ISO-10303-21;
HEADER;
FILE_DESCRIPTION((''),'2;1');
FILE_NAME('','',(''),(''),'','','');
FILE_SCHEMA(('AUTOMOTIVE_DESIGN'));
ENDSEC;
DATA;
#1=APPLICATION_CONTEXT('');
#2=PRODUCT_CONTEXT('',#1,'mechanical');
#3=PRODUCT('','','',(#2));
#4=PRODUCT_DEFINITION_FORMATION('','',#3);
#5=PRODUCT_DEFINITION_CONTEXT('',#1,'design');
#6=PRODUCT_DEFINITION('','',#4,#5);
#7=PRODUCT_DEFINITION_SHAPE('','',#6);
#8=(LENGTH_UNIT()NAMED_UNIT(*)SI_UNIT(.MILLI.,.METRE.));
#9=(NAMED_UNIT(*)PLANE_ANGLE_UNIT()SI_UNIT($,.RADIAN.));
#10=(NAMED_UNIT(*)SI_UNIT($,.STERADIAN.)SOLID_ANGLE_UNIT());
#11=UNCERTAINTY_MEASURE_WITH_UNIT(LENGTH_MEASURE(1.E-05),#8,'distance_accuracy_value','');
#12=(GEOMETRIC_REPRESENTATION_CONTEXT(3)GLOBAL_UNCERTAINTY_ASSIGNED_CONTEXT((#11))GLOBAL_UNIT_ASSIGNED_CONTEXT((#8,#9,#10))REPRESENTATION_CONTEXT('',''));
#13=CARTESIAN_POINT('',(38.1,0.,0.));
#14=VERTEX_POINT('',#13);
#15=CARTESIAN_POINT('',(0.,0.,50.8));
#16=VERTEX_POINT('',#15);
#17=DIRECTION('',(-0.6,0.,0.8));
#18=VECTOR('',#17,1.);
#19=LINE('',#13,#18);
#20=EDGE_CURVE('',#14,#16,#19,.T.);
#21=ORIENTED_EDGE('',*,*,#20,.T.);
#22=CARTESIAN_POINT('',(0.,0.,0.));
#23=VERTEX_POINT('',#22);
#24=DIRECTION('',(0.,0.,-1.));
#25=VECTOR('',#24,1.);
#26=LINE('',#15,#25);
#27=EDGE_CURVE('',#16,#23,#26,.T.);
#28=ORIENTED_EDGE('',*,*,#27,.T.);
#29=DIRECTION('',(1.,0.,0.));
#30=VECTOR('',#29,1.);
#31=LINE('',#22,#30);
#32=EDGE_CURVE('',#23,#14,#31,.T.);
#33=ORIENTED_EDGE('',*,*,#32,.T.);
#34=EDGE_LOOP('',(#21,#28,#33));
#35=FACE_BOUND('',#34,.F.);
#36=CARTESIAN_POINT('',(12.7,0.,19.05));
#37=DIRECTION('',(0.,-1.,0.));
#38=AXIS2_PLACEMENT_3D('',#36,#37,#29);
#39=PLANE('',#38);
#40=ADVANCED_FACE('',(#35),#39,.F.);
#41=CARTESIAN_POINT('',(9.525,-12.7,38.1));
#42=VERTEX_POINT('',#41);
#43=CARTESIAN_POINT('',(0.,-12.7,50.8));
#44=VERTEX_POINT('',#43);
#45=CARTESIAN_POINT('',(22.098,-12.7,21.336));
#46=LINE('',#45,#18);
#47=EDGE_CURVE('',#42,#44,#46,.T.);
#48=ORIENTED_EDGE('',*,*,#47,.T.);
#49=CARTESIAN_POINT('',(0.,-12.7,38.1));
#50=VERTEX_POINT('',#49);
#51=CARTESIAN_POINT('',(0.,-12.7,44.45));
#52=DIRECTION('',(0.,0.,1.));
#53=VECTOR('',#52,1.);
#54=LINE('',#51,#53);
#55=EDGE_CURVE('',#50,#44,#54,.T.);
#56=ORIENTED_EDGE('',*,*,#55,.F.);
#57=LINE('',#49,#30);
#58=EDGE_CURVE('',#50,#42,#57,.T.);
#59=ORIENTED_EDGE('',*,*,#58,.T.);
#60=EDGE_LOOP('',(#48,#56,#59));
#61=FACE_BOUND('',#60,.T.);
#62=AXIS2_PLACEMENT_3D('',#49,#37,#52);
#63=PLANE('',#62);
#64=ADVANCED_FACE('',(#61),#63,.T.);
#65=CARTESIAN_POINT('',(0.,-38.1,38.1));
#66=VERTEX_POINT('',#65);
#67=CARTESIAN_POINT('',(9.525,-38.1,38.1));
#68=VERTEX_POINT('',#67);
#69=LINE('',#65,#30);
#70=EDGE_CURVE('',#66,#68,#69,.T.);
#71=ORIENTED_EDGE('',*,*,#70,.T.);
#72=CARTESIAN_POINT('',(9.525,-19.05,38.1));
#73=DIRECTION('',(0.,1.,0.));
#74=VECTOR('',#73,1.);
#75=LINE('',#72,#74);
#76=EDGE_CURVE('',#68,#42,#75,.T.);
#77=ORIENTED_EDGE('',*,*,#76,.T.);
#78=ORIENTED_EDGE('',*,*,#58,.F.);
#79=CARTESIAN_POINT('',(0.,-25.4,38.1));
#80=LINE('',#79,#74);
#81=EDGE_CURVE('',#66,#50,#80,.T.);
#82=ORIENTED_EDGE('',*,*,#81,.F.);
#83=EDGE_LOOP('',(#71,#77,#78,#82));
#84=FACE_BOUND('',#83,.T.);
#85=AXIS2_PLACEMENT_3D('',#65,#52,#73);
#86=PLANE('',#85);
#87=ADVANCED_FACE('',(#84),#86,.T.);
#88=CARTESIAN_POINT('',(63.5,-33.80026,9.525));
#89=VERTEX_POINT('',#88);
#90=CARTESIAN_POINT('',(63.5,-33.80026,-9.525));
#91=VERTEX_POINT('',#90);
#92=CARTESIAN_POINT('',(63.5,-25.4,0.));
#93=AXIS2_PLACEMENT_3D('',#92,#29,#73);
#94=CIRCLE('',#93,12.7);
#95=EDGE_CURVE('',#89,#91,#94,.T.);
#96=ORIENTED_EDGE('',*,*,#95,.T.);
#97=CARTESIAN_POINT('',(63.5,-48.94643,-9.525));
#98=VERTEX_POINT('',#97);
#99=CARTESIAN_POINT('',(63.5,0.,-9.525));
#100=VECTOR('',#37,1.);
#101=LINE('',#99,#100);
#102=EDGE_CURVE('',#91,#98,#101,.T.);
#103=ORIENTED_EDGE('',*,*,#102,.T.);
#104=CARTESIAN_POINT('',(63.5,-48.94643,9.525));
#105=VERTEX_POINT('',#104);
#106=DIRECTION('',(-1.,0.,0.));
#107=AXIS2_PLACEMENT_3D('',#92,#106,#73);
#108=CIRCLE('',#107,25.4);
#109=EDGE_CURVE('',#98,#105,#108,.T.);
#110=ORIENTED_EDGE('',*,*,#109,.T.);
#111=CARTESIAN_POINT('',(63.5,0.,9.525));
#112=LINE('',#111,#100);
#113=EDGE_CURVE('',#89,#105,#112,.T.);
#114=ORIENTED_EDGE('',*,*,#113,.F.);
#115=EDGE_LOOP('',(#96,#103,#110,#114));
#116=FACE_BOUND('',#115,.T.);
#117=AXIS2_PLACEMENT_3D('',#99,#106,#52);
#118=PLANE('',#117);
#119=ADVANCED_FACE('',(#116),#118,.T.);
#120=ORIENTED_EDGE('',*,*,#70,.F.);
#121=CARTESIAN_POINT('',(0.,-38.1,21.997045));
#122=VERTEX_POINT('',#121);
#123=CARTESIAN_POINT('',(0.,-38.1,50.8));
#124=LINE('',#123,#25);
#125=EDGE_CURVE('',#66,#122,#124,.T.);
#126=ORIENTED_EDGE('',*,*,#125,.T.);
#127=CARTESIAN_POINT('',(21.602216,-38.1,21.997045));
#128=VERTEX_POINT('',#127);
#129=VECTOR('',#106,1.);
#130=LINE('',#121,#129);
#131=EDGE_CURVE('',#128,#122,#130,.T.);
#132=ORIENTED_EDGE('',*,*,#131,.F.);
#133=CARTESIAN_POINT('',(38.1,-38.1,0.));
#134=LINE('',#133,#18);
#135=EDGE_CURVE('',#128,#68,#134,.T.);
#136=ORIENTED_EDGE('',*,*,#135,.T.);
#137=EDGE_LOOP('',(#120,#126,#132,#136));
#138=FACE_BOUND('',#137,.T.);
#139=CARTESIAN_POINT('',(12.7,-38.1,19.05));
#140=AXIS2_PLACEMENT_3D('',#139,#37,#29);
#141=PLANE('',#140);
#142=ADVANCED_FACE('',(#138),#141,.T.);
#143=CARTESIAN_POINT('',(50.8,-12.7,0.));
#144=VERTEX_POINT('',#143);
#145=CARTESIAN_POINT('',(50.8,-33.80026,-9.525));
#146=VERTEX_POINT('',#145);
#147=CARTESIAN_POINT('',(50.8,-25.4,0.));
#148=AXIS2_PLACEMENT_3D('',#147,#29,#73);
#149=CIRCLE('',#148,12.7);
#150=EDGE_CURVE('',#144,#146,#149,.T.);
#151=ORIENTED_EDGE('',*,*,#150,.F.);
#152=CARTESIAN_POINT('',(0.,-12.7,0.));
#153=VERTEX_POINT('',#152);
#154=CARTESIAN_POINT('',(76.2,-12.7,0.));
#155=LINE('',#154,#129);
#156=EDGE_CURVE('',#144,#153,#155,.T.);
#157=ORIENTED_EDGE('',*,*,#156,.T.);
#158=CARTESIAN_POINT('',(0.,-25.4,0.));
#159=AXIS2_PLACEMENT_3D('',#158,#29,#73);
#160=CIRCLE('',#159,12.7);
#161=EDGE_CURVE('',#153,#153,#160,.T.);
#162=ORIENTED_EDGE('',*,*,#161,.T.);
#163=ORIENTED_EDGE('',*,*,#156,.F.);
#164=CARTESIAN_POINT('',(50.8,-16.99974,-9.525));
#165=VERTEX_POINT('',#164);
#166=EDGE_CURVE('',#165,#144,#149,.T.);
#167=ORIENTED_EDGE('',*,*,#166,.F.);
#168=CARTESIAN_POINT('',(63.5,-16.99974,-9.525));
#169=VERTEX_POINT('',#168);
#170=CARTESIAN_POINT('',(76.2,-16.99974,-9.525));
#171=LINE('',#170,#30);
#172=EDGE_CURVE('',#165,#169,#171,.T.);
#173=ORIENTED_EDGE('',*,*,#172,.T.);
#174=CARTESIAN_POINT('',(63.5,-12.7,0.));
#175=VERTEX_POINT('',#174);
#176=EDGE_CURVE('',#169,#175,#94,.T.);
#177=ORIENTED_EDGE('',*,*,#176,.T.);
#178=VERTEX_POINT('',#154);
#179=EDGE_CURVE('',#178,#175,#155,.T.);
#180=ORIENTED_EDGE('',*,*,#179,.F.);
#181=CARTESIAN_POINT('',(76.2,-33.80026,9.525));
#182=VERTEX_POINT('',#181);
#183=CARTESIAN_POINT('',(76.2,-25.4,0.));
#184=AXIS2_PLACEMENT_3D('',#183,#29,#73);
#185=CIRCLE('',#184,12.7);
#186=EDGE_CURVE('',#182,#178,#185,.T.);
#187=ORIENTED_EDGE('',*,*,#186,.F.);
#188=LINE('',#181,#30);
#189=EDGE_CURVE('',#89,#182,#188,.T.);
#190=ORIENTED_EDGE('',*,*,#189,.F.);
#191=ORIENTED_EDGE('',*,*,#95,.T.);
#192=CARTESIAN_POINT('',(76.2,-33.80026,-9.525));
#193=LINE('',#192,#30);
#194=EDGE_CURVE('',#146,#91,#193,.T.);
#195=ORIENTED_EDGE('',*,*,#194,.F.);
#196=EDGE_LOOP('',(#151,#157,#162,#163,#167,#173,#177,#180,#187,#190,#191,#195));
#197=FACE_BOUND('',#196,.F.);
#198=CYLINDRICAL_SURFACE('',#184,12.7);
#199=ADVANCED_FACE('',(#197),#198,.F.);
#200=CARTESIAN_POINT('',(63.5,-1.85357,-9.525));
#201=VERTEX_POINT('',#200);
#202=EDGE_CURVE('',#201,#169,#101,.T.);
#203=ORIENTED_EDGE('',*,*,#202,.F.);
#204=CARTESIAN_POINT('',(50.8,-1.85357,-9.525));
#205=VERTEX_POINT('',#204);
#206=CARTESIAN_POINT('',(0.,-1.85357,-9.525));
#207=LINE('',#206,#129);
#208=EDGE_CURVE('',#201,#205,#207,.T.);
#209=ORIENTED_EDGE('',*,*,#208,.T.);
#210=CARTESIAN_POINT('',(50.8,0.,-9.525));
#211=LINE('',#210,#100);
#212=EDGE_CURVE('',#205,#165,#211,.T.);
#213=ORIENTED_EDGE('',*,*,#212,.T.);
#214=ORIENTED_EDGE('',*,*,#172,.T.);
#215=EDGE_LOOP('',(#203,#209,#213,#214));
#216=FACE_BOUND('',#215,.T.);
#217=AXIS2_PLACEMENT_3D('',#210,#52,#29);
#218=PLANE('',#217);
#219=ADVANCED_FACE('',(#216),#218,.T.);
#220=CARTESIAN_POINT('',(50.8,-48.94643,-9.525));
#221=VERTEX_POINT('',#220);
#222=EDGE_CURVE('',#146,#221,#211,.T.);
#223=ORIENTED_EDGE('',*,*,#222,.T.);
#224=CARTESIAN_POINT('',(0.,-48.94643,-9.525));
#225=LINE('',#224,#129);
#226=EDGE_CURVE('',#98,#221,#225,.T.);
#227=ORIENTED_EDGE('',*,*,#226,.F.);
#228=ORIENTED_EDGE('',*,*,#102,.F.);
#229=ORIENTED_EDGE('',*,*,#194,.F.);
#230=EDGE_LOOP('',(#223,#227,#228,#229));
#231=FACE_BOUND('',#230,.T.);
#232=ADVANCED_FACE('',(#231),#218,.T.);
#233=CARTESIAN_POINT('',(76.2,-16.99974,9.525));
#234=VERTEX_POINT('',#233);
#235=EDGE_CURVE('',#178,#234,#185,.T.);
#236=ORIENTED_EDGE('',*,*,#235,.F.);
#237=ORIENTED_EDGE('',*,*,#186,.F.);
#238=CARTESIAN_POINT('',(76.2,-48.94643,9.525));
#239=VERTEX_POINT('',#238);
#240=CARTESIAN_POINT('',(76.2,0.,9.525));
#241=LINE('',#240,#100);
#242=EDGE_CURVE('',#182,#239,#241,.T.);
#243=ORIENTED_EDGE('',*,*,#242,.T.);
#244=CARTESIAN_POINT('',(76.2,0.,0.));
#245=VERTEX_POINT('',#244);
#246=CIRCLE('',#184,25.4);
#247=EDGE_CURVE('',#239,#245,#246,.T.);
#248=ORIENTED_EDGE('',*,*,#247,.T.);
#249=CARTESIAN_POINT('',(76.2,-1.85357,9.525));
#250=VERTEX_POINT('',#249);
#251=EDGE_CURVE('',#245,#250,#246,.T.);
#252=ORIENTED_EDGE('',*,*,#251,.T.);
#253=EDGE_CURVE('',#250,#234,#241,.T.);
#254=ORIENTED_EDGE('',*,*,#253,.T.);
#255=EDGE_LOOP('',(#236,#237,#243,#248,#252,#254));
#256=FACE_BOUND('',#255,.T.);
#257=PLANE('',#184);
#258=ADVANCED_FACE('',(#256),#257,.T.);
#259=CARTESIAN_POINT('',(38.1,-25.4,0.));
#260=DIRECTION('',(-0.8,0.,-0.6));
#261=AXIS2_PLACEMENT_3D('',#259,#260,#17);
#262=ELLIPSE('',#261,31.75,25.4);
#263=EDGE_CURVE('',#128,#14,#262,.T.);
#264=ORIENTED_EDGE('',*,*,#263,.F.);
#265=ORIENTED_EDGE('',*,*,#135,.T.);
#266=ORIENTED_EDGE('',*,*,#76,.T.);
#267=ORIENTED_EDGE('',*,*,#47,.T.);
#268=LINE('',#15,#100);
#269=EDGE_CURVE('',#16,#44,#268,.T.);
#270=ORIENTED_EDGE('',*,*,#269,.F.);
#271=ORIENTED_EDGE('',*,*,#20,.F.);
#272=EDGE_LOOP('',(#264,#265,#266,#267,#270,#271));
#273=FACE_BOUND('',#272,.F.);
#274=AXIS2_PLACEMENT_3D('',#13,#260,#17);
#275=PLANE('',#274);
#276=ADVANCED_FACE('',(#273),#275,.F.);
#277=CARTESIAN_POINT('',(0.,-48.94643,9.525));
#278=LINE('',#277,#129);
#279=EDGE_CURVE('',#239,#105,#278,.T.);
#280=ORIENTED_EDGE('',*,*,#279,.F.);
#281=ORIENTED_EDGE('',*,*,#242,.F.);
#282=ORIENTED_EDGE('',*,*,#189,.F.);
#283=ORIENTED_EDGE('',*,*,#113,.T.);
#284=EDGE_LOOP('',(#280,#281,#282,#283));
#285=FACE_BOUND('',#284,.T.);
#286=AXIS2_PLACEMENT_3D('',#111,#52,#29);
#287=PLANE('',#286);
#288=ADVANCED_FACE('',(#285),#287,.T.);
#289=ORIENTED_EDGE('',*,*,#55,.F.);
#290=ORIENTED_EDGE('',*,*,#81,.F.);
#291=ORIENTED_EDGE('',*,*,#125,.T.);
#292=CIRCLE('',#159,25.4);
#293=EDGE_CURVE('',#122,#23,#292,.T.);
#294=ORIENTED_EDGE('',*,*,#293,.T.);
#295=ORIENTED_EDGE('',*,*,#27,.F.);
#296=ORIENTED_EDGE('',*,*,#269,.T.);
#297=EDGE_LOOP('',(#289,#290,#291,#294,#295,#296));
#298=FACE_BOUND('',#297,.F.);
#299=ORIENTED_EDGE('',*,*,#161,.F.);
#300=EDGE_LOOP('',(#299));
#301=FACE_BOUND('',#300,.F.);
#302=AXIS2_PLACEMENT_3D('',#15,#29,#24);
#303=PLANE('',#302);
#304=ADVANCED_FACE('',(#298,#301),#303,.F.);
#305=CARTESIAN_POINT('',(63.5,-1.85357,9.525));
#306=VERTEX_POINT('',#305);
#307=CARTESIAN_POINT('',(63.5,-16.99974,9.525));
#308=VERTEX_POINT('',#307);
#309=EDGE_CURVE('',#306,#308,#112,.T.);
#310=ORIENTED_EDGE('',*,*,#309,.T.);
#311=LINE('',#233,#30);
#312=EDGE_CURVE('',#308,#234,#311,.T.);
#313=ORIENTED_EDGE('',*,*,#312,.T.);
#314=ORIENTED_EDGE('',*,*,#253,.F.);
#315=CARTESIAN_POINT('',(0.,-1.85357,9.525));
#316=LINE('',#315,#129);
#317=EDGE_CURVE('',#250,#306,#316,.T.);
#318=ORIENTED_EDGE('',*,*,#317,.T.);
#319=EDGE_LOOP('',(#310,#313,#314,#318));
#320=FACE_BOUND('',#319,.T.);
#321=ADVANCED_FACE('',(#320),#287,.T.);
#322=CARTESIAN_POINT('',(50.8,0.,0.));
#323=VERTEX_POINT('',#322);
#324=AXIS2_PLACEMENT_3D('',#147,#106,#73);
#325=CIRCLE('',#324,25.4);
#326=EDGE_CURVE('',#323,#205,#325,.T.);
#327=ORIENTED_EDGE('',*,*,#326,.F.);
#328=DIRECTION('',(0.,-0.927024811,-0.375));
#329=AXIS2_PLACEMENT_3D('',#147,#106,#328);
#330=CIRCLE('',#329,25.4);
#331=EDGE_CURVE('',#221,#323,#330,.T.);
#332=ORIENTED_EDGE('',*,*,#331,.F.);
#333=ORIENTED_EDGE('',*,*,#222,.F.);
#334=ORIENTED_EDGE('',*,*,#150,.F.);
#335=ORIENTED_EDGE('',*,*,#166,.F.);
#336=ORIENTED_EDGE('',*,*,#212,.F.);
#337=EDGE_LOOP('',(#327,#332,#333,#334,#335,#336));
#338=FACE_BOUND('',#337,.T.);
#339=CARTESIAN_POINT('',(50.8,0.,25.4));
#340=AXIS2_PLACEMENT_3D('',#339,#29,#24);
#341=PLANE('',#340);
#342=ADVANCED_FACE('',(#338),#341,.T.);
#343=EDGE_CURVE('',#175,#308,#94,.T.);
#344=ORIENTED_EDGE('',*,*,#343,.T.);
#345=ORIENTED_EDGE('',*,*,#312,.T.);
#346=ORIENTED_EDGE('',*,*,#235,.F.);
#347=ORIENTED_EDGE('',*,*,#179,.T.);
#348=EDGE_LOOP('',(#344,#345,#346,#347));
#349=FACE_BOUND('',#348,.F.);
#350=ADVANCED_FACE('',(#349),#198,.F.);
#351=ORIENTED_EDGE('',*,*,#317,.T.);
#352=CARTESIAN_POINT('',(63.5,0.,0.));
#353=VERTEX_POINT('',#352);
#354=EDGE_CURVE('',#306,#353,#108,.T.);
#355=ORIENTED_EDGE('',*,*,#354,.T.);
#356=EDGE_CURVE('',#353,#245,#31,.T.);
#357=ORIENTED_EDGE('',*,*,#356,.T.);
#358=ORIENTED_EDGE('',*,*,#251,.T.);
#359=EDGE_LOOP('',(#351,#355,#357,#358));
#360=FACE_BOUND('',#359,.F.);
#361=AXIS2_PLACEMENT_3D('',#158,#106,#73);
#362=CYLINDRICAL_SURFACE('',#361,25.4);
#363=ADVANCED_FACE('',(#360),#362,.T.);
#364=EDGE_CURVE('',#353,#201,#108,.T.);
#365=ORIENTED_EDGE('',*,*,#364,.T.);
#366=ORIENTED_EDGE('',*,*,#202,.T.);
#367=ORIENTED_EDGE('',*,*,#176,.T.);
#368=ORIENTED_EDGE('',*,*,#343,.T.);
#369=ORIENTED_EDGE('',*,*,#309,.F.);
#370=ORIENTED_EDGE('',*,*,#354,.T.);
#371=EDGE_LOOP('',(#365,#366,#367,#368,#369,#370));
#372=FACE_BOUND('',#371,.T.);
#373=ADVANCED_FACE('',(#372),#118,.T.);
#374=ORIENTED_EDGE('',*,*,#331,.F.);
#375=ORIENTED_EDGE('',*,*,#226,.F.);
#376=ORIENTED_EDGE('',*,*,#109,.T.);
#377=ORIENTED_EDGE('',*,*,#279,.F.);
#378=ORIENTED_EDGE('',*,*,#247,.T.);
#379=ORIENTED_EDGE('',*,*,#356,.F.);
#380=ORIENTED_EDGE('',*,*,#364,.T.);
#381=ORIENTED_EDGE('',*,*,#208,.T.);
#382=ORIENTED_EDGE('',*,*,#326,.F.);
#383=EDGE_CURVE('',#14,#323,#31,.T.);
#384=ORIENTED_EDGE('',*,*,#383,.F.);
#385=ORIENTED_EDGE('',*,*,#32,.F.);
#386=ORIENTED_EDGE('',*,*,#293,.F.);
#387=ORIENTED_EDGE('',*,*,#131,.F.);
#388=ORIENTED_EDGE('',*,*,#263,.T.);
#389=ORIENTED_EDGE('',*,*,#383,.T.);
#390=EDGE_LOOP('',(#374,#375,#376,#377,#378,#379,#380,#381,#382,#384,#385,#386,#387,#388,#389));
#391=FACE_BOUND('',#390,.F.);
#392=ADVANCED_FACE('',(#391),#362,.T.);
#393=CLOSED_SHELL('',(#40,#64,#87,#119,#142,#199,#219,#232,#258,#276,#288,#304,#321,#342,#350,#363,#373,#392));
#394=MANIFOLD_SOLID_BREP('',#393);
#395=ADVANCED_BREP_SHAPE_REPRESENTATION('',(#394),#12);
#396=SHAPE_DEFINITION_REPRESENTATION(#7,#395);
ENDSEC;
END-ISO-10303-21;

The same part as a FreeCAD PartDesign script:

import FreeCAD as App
import Part
import Sketcher
from FreeCAD import Vector
Q = App.Units.Quantity

doc = App.newDocument("Part")
body = doc.addObject("PartDesign::Body", "Body")

sketch1 = body.newObject("Sketcher::SketchObject", "Sketch")
sketch1.AttachmentSupport = (doc.getObject("XZ_Plane"), [""])
sketch1.MapMode = "FlatFace"
sketch1.addGeometry([
    Part.LineSegment(Vector(0, 50.8, 0), Vector(0, 0, 0)),
    Part.LineSegment(Vector(0, 0, 0), Vector(38.1, 0, 0)),
    Part.LineSegment(Vector(38.1, 0, 0), Vector(0, 50.8, 0)),
], False)
sketch1.addConstraint([
    Sketcher.Constraint("Coincident", 0, 2, 1, 1),
    Sketcher.Constraint("Coincident", 1, 2, 2, 1),
    Sketcher.Constraint("Coincident", 2, 2, 0, 1),
    Sketcher.Constraint("Vertical", 0),
    Sketcher.Constraint("Horizontal", 1),
    Sketcher.Constraint("Coincident", 0, 2, -1, 1),
    Sketcher.Constraint("DistanceY", 0, 2, 0, 1, Q("2 in")),
    Sketcher.Constraint("DistanceX", 1, 1, 1, 2, Q("1.5 in")),
])
pad1 = body.newObject("PartDesign::Pad", "Pad")
pad1.Profile = sketch1
pad1.Length = Q("1.5 in")

sketch2 = body.newObject("Sketcher::SketchObject", "Sketch001")
sketch2.AttachmentSupport = (doc.getObject("YZ_Plane"), [""])
sketch2.MapMode = "FlatFace"
sketch2.addGeometry(Part.Circle(Vector(-25.4, 0, 0), Vector(0, 0, 1), 25.4), False)
sketch2.addConstraint([
    Sketcher.Constraint("PointOnObject", 0, 3, -1),
    Sketcher.Constraint("Diameter", 0, Q("2 in")),
    Sketcher.Constraint("DistanceX", 0, 3, -1, 1, Q("1 in")),
])
pad2 = body.newObject("PartDesign::Pad", "Pad001")
pad2.Profile = sketch2
pad2.Length = Q("3 in")

sketch3 = body.newObject("Sketcher::SketchObject", "Sketch002")
sketch3.AttachmentSupport = (doc.getObject("YZ_Plane"), [""])
sketch3.MapMode = "FlatFace"
sketch3.AttachmentOffset = App.Placement(Vector(0, 0, 3 * 25.4), App.Rotation())
sketch3.addGeometry(Part.Circle(Vector(-25.4, 0, 0), Vector(0, 0, 1), 12.7), False)
sketch3.addConstraint([
    Sketcher.Constraint("PointOnObject", 0, 3, -1),
    Sketcher.Constraint("Diameter", 0, Q("1 in")),
    Sketcher.Constraint("DistanceX", 0, 3, -1, 1, Q("1 in")),
])
pocket1 = body.newObject("PartDesign::Pocket", "Pocket")
pocket1.Profile = sketch3
pocket1.Type = "ThroughAll"

sketch4 = body.newObject("Sketcher::SketchObject", "Sketch003")
sketch4.AttachmentSupport = (doc.getObject("XZ_Plane"), [""])
sketch4.MapMode = "FlatFace"
sketch4.addGeometry([
    Part.LineSegment(Vector(76.2, 25.4, 0), Vector(50.8, 25.4, 0)),
    Part.LineSegment(Vector(50.8, 25.4, 0), Vector(50.8, -9.525, 0)),
    Part.LineSegment(Vector(50.8, -9.525, 0), Vector(63.5, -9.525, 0)),
    Part.LineSegment(Vector(63.5, -9.525, 0), Vector(63.5, 9.525, 0)),
    Part.LineSegment(Vector(63.5, 9.525, 0), Vector(76.2, 9.525, 0)),
    Part.LineSegment(Vector(76.2, 9.525, 0), Vector(76.2, 25.4, 0)),
], False)
sketch4.addConstraint([
    Sketcher.Constraint("Coincident", 0, 2, 1, 1),
    Sketcher.Constraint("Coincident", 1, 2, 2, 1),
    Sketcher.Constraint("Coincident", 2, 2, 3, 1),
    Sketcher.Constraint("Coincident", 3, 2, 4, 1),
    Sketcher.Constraint("Coincident", 4, 2, 5, 1),
    Sketcher.Constraint("Coincident", 5, 2, 0, 1),
    Sketcher.Constraint("Horizontal", 0),
    Sketcher.Constraint("Vertical", 1),
    Sketcher.Constraint("Horizontal", 2),
    Sketcher.Constraint("Vertical", 3),
    Sketcher.Constraint("Horizontal", 4),
    Sketcher.Constraint("Vertical", 5),
    Sketcher.Constraint("Equal", 2, 4),
    Sketcher.Constraint("DistanceX", 0, 2, 0, 1, Q("1 in")),
    Sketcher.Constraint("DistanceX", -1, 1, 0, 2, Q("2 in")),
    Sketcher.Constraint("DistanceY", -1, 1, 0, 2, Q("1 in")),
    Sketcher.Constraint("DistanceY", 3, 1, 3, 2, Q("0.75 in")),
    Sketcher.Constraint("DistanceY", 1, 2, 1, 1, Q("1.375 in")),
])
pocket2 = body.newObject("PartDesign::Pocket", "Pocket001")
pocket2.Profile = sketch4
pocket2.Type = "ThroughAll"
pocket2.Reversed = True

sketch5 = body.newObject("Sketcher::SketchObject", "Sketch004")
sketch5.AttachmentSupport = (doc.getObject("YZ_Plane"), [""])
sketch5.MapMode = "FlatFace"
sketch5.addGeometry([
    Part.LineSegment(Vector(-38.1, 50.8, 0), Vector(-38.1, 38.1, 0)),
    Part.LineSegment(Vector(-38.1, 38.1, 0), Vector(-12.7, 38.1, 0)),
    Part.LineSegment(Vector(-12.7, 38.1, 0), Vector(-12.7, 50.8, 0)),
    Part.LineSegment(Vector(-12.7, 50.8, 0), Vector(-38.1, 50.8, 0)),
], False)
sketch5.addConstraint([
    Sketcher.Constraint("Coincident", 0, 2, 1, 1),
    Sketcher.Constraint("Coincident", 1, 2, 2, 1),
    Sketcher.Constraint("Coincident", 2, 2, 3, 1),
    Sketcher.Constraint("Coincident", 3, 2, 0, 1),
    Sketcher.Constraint("Vertical", 0),
    Sketcher.Constraint("Horizontal", 1),
    Sketcher.Constraint("Vertical", 2),
    Sketcher.Constraint("Horizontal", 3),
    Sketcher.Constraint("DistanceX", 1, 1, 1, 2, Q("1 in")),
    Sketcher.Constraint("DistanceY", 0, 2, 0, 1, Q("0.5 in")),
    Sketcher.Constraint("DistanceY", -1, 1, 2, 2, Q("2 in")),
    Sketcher.Constraint("DistanceX", 0, 2, -1, 1, Q("1.5 in")),
])
pocket3 = body.newObject("PartDesign::Pocket", "Pocket002")
pocket3.Profile = sketch5
pocket3.Length = Q("1 in")
pocket3.Reversed = True

doc.recompute()
